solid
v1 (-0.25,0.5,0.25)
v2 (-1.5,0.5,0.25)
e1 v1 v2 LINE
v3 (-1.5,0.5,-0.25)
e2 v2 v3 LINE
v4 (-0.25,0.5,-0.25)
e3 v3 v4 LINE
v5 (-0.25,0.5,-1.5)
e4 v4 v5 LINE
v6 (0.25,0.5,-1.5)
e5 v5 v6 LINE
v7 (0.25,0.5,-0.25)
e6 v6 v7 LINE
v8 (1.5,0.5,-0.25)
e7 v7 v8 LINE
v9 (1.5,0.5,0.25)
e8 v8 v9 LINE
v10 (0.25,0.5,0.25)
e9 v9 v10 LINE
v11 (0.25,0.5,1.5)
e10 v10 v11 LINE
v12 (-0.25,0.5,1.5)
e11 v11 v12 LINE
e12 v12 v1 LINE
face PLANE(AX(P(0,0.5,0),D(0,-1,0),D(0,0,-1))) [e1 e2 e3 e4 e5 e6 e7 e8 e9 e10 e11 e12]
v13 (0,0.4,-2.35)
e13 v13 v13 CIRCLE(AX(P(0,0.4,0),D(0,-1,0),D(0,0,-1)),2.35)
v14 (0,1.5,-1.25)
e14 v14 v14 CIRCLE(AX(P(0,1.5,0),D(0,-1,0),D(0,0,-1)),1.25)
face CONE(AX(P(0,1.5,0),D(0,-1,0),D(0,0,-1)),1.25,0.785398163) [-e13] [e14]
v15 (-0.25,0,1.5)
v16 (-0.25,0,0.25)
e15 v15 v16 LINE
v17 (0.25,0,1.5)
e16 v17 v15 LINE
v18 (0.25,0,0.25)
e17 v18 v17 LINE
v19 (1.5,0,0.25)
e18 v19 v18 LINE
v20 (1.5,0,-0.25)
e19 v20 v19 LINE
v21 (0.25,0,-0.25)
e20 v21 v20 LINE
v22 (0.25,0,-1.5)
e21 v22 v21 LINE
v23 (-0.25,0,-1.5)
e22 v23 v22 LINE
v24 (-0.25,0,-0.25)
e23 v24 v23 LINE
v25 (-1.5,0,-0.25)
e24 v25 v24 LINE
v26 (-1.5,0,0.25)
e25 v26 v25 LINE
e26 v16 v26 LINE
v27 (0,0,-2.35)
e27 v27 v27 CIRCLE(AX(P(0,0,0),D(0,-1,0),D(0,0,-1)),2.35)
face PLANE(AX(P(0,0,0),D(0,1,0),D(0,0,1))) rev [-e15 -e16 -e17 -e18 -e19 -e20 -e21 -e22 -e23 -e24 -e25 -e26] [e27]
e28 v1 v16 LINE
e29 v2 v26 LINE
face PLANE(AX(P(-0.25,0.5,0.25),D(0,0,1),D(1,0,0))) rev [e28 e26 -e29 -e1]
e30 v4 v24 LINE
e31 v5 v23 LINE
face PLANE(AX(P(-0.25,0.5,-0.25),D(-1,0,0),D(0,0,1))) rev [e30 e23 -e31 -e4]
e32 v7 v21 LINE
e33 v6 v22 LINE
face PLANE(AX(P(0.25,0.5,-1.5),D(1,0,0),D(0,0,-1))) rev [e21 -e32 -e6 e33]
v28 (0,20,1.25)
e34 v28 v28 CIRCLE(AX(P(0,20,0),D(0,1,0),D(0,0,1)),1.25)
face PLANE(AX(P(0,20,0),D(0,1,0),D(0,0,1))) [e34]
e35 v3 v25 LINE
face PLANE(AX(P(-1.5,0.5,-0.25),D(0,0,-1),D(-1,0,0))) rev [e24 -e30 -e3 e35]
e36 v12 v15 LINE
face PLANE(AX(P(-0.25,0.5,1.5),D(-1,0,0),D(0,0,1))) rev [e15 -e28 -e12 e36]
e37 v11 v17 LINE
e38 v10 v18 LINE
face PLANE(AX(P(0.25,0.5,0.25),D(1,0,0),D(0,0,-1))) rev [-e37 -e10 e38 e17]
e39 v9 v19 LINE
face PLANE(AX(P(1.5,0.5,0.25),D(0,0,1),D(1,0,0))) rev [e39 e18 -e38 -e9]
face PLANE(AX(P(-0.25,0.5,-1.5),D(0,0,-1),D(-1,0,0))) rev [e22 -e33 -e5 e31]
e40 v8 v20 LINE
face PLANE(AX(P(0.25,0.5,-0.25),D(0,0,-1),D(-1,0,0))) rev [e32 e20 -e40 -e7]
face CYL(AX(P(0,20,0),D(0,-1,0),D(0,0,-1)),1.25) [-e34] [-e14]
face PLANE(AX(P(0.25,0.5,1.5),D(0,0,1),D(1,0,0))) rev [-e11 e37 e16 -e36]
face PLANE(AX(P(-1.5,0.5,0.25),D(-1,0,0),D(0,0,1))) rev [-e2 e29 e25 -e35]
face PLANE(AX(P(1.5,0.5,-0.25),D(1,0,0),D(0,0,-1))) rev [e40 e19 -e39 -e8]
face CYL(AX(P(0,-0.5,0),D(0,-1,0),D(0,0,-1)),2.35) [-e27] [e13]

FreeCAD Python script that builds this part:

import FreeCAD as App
import Part
import Sketcher
Q = App.Units.Quantity


def add_polygon(sketch, points):
    """Adds a closed chain of lines whose ends are joined by coincident constraints."""
    first, n = sketch.GeometryCount, len(points)
    for a, b in zip(points, points[1:] + points[:1]):
        sketch.addGeometry(Part.LineSegment(App.Vector(*a, 0), App.Vector(*b, 0)), False)
    for i in range(n):
        sketch.addConstraint(Sketcher.Constraint("Coincident", first + i, 2, first + (i + 1) % n, 1))

doc = App.newDocument("Part")
body = doc.addObject("PartDesign::Body", "Body")

# Sketch on XZ plane
sketch1 = body.newObject("Sketcher::SketchObject", "Sketch")
sketch1.AttachmentSupport = (doc.getObject("XZ_Plane"), [""])
sketch1.MapMode = "FlatFace"
sketch1.addGeometry(Part.Circle(App.Vector(0, 0, 0), App.Vector(0, 0, 1), 1.2), False)
sketch1.addConstraint(Sketcher.Constraint("Coincident", 0, 3, -1, 1))
sketch1.addConstraint(Sketcher.Constraint("Diameter", 0, Q("2.5 mm")))
pad1 = body.newObject("PartDesign::Pad", "Pad")
pad1.Profile = sketch1
pad1.Length = 20
pad1.Reversed = True

# Sketch on YZ plane
sketch2 = body.newObject("Sketcher::SketchObject", "Sketch001")
sketch2.AttachmentSupport = (doc.getObject("YZ_Plane"), [""])
sketch2.MapMode = "FlatFace"
add_polygon(sketch2, [(0, 0), (1.5, 0), (1.5, 1.25), (0.4, 2.35), (0, 2.35)])  # lines 0-4
sketch2.addConstraint(Sketcher.Constraint("Horizontal", 0))
sketch2.addConstraint(Sketcher.Constraint("Vertical", 1))
sketch2.addConstraint(Sketcher.Constraint("Horizontal", 3))
sketch2.addConstraint(Sketcher.Constraint("Vertical", 4))
sketch2.addConstraint(Sketcher.Constraint("Coincident", 4, 2, -1, 1))
sketch2.addConstraint(Sketcher.Constraint("Angle", 2, Q("135 deg")))
sketch2.addConstraint(Sketcher.Constraint("DistanceX", 0, 1, 0, 2, Q("1.5 mm")))
sketch2.addConstraint(Sketcher.Constraint("DistanceX", 3, 2, 3, 1, Q("0.4 mm")))
sketch2.addConstraint(Sketcher.Constraint("DistanceY", 1, 1, 1, 2, Q("1.25 mm")))
revolution = body.newObject("PartDesign::Revolution", "Revolution")
revolution.Profile = sketch2
revolution.ReferenceAxis = (sketch2, ["H_Axis"])
revolution.Angle = 360

# Sketch on XZ plane
sketch3 = body.newObject("Sketcher::SketchObject", "Sketch002")
sketch3.AttachmentSupport = (doc.getObject("XZ_Plane"), [""])
sketch3.MapMode = "FlatFace"
add_polygon(sketch3, [(-1.5, -0.2), (-0.2, -0.2), (-0.2, -1.5), (0.2, -1.5), (0.2, -0.2), (1.5, -0.2), (1.5, 0.2), (0.2, 0.2), (0.2, 1.5), (-0.2, 1.5), (-0.2, 0.2), (-1.5, 0.2)])  # lines 0-11
sketch3.addConstraint(Sketcher.Constraint("Horizontal", 0))
sketch3.addConstraint(Sketcher.Constraint("Vertical", 1))
sketch3.addConstraint(Sketcher.Constraint("Horizontal", 2))
sketch3.addConstraint(Sketcher.Constraint("Vertical", 3))
sketch3.addConstraint(Sketcher.Constraint("Horizontal", 4))
sketch3.addConstraint(Sketcher.Constraint("Vertical", 5))
sketch3.addConstraint(Sketcher.Constraint("Horizontal", 6))
sketch3.addConstraint(Sketcher.Constraint("Vertical", 7))
sketch3.addConstraint(Sketcher.Constraint("Horizontal", 8))
sketch3.addConstraint(Sketcher.Constraint("Vertical", 9))
sketch3.addConstraint(Sketcher.Constraint("Horizontal", 10))
sketch3.addConstraint(Sketcher.Constraint("Vertical", 11))
sketch3.addConstraint(Sketcher.Constraint("Symmetric", 0, 2, 6, 2, -1, 1))
sketch3.addConstraint(Sketcher.Constraint("Symmetric", 2, 2, 8, 2, -1, 1))
sketch3.addConstraint(Sketcher.Constraint("Symmetric", 4, 2, 10, 2, -1, 1))
sketch3.addConstraint(Sketcher.Constraint("Symmetric", 0, 2, 3, 2, -2))
sketch3.addConstraint(Sketcher.Constraint("Equal", 10, 1))
sketch3.addConstraint(Sketcher.Constraint("Equal", 8, 5))
sketch3.addConstraint(Sketcher.Constraint("DistanceX", 2, 1, 2, 2, Q("0.5 mm")))
sketch3.addConstraint(Sketcher.Constraint("DistanceX", 0, 1, 0, 2, Q("1.25 mm")))
pocket1 = body.newObject("PartDesign::Pocket", "Pocket")
pocket1.Profile = sketch3
pocket1.Length = 0.5

doc.recompute()
